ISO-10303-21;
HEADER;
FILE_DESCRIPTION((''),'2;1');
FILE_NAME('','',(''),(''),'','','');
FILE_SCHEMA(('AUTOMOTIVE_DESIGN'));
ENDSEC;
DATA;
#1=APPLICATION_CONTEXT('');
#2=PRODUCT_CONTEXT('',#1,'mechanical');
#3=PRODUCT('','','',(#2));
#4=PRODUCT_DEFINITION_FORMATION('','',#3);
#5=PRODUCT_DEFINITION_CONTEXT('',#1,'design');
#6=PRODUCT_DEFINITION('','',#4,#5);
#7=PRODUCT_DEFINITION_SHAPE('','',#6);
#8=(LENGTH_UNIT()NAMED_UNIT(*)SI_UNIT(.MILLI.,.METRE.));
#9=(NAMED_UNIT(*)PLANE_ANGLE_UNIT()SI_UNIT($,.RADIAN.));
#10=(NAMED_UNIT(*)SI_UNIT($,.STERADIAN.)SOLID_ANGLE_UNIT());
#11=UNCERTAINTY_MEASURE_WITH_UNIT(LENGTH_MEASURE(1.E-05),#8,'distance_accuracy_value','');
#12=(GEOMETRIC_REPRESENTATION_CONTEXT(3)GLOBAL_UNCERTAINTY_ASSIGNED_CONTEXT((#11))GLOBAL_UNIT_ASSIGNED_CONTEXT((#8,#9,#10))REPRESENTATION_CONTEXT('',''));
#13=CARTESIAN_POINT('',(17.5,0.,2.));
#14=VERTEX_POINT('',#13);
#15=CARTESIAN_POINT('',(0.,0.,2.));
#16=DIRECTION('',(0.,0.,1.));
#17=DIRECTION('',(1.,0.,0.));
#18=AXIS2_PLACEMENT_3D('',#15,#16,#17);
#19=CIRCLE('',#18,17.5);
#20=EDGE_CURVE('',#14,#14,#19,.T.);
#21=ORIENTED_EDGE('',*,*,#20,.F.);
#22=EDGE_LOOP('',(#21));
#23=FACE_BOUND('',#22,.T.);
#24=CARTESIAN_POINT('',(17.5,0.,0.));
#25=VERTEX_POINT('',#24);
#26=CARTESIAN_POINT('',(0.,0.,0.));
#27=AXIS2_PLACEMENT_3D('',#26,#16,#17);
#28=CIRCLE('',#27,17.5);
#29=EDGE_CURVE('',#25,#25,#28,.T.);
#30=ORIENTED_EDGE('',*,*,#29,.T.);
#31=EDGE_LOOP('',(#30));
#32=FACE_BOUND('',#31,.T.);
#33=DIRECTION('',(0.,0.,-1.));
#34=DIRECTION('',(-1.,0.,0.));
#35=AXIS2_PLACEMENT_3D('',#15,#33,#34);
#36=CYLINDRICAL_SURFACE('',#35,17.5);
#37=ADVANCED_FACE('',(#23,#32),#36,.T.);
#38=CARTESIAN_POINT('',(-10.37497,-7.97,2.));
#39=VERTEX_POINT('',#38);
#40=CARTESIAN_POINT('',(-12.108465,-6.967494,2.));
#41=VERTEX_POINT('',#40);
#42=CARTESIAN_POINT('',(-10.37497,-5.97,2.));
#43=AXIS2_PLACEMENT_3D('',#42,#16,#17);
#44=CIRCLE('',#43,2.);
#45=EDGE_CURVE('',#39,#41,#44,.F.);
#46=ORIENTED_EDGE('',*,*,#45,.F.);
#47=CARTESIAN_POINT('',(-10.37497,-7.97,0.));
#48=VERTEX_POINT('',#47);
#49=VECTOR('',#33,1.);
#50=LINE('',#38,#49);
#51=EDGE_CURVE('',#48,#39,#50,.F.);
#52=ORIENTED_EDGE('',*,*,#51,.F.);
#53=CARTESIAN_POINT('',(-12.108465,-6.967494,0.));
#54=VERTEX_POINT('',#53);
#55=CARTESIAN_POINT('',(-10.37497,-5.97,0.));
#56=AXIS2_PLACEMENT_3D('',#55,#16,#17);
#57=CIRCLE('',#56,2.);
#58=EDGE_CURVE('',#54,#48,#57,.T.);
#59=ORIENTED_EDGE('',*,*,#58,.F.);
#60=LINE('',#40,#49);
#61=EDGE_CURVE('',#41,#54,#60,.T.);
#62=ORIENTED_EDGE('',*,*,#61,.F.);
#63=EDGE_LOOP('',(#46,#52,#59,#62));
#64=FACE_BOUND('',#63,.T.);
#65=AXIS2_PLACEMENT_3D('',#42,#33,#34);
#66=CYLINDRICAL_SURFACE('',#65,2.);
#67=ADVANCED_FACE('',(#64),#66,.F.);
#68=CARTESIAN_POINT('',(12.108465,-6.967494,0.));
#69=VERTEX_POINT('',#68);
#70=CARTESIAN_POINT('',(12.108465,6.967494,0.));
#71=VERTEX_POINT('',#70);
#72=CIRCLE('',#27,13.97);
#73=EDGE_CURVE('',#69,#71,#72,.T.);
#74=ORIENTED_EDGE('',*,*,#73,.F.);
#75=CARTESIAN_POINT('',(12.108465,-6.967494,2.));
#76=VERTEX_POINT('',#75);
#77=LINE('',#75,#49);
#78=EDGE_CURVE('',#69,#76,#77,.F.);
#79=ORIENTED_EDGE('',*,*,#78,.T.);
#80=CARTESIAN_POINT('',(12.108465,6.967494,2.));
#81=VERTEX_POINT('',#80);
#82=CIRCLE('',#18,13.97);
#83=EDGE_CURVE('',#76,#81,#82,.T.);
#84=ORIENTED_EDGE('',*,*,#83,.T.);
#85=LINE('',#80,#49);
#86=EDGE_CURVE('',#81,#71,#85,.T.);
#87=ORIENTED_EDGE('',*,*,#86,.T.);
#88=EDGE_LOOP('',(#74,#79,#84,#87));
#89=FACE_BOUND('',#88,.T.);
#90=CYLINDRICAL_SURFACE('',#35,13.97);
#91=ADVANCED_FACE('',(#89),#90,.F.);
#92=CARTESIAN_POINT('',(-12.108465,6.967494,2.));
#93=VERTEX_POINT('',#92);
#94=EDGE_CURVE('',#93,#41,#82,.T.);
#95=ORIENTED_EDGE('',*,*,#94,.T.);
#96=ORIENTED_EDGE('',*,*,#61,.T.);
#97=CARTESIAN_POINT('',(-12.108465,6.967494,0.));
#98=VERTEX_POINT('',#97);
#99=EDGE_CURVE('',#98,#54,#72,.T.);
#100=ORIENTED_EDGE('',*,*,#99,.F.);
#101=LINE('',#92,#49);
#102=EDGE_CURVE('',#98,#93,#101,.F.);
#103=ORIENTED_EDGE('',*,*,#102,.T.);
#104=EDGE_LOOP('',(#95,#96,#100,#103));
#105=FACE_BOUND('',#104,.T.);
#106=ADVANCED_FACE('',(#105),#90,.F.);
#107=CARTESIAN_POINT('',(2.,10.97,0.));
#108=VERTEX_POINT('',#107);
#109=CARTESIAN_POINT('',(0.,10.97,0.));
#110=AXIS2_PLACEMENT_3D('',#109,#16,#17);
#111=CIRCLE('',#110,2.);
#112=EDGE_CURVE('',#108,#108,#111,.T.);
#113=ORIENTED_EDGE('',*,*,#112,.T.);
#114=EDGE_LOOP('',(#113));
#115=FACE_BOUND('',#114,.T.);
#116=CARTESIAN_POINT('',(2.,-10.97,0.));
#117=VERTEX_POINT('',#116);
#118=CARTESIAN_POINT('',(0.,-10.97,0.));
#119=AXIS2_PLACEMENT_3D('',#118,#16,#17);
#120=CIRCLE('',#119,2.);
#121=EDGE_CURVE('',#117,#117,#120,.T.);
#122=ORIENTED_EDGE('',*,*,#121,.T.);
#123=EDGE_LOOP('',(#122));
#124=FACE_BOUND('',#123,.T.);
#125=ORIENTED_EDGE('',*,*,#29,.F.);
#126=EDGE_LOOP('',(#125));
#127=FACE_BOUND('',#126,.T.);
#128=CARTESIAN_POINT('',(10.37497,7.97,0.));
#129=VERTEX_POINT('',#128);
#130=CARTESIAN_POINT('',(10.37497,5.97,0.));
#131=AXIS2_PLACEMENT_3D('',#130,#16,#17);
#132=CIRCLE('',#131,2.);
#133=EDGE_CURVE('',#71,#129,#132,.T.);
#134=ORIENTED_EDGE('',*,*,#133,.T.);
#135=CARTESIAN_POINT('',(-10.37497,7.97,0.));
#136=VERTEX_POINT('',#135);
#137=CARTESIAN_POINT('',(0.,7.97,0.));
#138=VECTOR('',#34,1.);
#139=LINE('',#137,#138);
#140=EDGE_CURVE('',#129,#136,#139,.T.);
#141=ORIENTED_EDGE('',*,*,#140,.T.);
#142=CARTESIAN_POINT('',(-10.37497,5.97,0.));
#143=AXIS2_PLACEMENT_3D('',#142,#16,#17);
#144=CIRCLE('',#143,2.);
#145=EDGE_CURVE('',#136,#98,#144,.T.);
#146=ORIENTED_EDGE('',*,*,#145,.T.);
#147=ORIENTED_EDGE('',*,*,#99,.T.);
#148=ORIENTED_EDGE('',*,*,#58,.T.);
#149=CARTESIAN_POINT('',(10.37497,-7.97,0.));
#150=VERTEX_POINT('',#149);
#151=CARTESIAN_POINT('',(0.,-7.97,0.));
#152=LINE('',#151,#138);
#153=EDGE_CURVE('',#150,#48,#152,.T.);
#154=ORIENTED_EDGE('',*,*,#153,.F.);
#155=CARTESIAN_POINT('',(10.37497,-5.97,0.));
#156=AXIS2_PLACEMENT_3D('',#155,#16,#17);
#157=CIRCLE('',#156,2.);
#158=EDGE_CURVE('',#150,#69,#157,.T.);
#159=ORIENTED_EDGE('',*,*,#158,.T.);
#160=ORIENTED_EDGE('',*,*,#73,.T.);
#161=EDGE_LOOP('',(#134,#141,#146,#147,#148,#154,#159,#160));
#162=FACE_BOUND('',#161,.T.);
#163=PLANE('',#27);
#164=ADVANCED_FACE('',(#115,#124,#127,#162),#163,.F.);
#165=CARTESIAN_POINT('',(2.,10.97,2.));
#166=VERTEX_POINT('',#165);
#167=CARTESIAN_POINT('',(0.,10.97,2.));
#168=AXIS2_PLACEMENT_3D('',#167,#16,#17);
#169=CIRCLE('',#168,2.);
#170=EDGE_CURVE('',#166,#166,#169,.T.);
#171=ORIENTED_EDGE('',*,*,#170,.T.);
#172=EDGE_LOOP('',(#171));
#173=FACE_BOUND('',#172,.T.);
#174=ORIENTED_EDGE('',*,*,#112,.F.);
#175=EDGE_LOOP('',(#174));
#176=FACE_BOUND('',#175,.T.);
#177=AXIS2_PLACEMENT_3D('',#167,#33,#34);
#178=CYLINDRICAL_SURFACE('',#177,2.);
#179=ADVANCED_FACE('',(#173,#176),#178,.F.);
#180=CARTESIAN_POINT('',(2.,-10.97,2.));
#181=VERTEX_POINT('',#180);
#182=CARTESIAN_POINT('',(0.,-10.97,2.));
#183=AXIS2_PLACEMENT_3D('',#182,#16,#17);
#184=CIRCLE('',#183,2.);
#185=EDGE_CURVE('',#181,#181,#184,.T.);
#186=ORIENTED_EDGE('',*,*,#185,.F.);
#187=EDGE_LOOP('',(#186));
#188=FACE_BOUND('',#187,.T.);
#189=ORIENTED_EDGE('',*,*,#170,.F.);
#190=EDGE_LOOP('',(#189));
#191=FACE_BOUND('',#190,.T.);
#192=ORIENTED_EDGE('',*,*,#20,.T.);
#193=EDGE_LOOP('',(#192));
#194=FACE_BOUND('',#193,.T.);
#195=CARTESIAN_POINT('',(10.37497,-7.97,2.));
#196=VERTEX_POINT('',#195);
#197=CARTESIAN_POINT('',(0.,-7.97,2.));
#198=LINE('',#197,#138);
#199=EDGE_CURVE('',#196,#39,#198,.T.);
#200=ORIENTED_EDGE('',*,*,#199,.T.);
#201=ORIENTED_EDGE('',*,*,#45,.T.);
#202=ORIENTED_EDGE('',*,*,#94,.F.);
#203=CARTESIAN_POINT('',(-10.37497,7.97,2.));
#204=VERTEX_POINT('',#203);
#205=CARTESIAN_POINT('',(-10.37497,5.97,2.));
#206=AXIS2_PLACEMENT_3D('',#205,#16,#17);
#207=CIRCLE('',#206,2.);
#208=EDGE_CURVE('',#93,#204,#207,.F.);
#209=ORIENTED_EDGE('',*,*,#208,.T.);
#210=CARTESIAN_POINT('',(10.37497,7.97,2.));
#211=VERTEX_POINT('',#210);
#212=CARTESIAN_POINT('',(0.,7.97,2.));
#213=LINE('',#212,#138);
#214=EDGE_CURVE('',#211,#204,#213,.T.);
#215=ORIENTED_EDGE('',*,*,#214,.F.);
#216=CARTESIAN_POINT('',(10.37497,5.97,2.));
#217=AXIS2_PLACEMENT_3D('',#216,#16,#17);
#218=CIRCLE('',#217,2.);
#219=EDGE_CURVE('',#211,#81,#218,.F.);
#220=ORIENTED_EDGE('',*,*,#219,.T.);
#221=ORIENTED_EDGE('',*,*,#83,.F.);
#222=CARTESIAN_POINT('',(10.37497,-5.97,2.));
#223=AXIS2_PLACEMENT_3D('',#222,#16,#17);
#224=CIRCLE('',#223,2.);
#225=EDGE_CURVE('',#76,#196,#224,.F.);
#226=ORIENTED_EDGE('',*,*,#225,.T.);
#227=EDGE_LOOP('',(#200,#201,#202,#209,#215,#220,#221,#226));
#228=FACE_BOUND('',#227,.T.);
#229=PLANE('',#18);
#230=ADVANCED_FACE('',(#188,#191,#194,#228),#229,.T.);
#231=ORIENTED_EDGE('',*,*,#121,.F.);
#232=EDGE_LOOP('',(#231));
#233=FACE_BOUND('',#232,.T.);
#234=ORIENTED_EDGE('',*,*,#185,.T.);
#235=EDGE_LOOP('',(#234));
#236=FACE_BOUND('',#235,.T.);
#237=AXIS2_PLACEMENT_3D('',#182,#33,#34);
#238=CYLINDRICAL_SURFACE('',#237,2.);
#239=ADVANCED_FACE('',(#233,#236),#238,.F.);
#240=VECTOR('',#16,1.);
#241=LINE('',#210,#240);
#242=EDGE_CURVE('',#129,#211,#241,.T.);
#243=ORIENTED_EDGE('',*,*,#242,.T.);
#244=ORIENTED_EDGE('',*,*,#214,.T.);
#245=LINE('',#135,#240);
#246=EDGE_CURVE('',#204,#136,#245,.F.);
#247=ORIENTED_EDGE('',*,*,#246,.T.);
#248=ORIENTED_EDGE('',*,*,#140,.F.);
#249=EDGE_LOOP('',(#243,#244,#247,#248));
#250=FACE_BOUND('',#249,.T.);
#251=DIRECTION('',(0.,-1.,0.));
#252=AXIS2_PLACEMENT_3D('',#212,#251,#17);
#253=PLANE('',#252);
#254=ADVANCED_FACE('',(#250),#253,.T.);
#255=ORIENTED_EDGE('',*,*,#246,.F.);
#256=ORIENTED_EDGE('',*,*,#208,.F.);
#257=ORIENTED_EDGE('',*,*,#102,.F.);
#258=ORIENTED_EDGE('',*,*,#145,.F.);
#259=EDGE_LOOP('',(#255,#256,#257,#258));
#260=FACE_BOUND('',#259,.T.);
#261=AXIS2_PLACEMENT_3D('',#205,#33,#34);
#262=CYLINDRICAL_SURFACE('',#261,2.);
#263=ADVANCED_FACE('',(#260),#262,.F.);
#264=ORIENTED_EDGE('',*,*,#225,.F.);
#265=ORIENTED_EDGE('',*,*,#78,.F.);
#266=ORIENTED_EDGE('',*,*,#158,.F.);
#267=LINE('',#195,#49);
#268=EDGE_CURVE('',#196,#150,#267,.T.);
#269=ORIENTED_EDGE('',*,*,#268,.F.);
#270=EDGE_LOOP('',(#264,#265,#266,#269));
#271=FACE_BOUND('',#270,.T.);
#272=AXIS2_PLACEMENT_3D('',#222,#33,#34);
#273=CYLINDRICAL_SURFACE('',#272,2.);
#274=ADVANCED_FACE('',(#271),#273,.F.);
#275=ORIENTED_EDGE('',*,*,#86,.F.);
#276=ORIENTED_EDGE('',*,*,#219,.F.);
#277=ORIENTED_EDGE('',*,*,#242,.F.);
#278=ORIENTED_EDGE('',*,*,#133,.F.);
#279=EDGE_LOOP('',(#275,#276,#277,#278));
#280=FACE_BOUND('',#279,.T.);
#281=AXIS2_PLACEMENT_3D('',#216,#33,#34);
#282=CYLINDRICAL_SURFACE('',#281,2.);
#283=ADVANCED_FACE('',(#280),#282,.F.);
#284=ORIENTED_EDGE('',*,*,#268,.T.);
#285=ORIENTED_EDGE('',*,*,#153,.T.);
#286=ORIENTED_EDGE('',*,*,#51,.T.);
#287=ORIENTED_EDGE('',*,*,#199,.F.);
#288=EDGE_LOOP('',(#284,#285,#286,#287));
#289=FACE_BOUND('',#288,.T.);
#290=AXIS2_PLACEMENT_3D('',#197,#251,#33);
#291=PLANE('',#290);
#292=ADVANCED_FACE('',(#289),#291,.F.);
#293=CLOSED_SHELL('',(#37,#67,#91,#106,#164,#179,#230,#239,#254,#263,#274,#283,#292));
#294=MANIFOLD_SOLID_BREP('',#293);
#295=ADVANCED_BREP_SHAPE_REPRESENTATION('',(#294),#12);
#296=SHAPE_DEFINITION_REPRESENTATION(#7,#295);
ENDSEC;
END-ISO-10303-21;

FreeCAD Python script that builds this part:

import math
import FreeCAD as App
import Part
import Sketcher

V = App.Vector
Q = App.Units.Quantity


def edges_at(feature, points):
    """Names of the edges that pass closest to the given points."""
    edges = feature.Shape.Edges
    near = lambda p: min(range(len(edges)), key=lambda i: edges[i].distToShape(Part.Vertex(*p))[0])
    return sorted({f"Edge{near(p) + 1}" for p in points})

doc = App.newDocument("Part")
body = doc.addObject("PartDesign::Body", "Body")

# Sketch on XY plane
sketch1 = body.newObject("Sketcher::SketchObject", "Sketch")
sketch1.AttachmentSupport = (doc.getObject("XY_Plane"), [""])
sketch1.MapMode = "FlatFace"
sketch1.addGeometry(Part.Circle(V(0, 0, 0), V(0, 0, 1), 17.5), False)
sketch1.addGeometry(Part.ArcOfCircle(Part.Circle(V(0, 0, 0), V(0, 0, 1), 14), math.radians(-35), math.radians(35)), False)
sketch1.addGeometry(Part.LineSegment(V(11.5, -8, 0), V(-11.5, -8, 0)), False)
sketch1.addGeometry(Part.ArcOfCircle(Part.Circle(V(0, 0, 0), V(0, 0, 1), 14), math.radians(145), math.radians(215)), False)
sketch1.addGeometry(Part.LineSegment(V(-11.5, 8, 0), V(11.5, 8, 0)), False)
sketch1.addGeometry(Part.Circle(V(0, 11, 0), V(0, 0, 1), 2), False)
sketch1.addGeometry(Part.Circle(V(0, -11, 0), V(0, 0, 1), 2), False)
sketch1.addConstraint(Sketcher.Constraint("Coincident", 1, 1, 2, 1))
sketch1.addConstraint(Sketcher.Constraint("Coincident", 2, 2, 3, 2))
sketch1.addConstraint(Sketcher.Constraint("Coincident", 3, 1, 4, 1))
sketch1.addConstraint(Sketcher.Constraint("Coincident", 4, 2, 1, 2))
sketch1.addConstraint(Sketcher.Constraint("Horizontal", 2))
sketch1.addConstraint(Sketcher.Constraint("Horizontal", 4))
sketch1.addConstraint(Sketcher.Constraint("Coincident", 0, 3, -1, 1))
sketch1.addConstraint(Sketcher.Constraint("Coincident", 1, 3, -1, 1))
sketch1.addConstraint(Sketcher.Constraint("Coincident", 3, 3, -1, 1))
sketch1.addConstraint(Sketcher.Constraint("Equal", 1, 3))
sketch1.addConstraint(Sketcher.Constraint("Equal", 5, 6))
sketch1.addConstraint(Sketcher.Constraint("Symmetric", 5, 3, 6, 3, -1, 1))
sketch1.addConstraint(Sketcher.Constraint("PointOnObject", 5, 3, -2))
sketch1.addConstraint(Sketcher.Constraint("Vertical", 2, 2, 3, 1))
sketch1.addConstraint(Sketcher.Constraint("Diameter", 0, Q("35 mm")))
sketch1.addConstraint(Sketcher.Constraint("Diameter", 5, Q("4 mm")))
sketch1.addConstraint(Sketcher.Constraint("Radius", 1, Q("13.97 mm")))
sketch1.addConstraint(Sketcher.Constraint("DistanceY", 6, 3, 1, 1, Q("3 mm")))
sketch1.addConstraint(Sketcher.Constraint("DistanceY", -1, 1, 5, 3, Q("10.97 mm")))
pad1 = body.newObject("PartDesign::Pad", "Pad")
pad1.Profile = sketch1
pad1.Length = 2
doc.recompute()

fillet = body.newObject("PartDesign::Fillet", "Fillet")
fillet.Base = (pad1, edges_at(pad1, [
    (11.473, -7.97, 1),
    (11.473, 7.97, 1),
    (-11.473, 7.97, 1),
    (-11.473, -7.97, 1),
]))
fillet.Radius = 2

doc.recompute()
